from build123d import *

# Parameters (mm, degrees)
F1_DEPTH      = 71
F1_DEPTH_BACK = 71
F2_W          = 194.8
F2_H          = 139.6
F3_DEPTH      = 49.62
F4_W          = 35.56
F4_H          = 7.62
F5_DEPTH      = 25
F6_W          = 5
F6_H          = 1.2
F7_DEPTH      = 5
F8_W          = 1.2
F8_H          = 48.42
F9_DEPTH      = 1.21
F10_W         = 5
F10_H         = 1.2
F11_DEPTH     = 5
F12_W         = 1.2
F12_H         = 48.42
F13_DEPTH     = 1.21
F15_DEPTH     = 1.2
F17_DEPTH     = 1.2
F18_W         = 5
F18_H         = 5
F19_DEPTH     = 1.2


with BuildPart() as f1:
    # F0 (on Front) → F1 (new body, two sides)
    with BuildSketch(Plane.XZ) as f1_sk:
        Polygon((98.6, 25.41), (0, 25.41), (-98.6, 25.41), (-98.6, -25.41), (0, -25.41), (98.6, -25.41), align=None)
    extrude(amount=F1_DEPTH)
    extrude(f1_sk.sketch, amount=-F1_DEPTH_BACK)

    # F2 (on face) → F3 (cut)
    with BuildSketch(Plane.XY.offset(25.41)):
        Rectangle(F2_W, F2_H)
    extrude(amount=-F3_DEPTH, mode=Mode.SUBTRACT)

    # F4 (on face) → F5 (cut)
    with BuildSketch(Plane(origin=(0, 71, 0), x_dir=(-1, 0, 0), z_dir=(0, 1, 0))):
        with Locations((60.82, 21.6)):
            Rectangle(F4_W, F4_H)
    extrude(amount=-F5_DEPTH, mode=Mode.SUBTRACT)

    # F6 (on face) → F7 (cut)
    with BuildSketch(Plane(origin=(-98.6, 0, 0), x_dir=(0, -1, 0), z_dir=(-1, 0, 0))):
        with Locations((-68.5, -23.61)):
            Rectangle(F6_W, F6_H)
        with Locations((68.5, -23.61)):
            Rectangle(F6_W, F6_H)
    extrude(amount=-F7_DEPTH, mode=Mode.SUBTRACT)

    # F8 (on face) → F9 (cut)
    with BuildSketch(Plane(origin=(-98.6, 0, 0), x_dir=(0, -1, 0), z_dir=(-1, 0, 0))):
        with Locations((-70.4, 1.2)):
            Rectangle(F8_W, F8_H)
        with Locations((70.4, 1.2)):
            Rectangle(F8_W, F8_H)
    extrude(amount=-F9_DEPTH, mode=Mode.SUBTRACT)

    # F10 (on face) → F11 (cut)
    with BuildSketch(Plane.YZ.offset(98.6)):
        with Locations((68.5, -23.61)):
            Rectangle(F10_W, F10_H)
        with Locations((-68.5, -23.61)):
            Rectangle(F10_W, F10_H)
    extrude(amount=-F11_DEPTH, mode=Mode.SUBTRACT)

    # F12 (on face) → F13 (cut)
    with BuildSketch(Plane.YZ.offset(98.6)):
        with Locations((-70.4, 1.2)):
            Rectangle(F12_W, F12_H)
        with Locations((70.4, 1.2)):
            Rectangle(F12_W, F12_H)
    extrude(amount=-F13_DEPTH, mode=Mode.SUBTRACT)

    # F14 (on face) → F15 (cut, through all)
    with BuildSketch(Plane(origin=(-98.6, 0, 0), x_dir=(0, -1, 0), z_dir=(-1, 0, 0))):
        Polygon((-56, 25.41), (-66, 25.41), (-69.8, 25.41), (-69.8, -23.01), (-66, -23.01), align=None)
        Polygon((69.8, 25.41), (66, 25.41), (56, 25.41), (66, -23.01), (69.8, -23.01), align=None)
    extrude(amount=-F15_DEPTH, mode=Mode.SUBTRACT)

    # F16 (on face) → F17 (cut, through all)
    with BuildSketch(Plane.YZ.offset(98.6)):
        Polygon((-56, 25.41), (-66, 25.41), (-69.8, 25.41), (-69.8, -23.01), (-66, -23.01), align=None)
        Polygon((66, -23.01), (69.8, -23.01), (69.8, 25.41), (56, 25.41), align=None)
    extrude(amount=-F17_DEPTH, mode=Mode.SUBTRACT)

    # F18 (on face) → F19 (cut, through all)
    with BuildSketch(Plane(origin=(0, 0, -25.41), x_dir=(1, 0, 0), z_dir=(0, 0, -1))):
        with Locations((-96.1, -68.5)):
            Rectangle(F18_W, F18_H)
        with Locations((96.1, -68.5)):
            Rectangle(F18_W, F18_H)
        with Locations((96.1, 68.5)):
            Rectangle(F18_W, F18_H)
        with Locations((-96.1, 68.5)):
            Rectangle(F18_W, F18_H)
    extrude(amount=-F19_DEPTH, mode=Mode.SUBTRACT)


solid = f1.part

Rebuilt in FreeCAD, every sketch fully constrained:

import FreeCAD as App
import Part
import Sketcher
Q = App.Units.Quantity

doc = App.newDocument("Part")
body = doc.addObject("PartDesign::Body", "Body")

# Sketch on XZ plane
sketch1 = body.newObject("Sketcher::SketchObject", "Sketch")
sketch1.AttachmentSupport = (doc.getObject("XZ_Plane"), [""])
sketch1.MapMode = "FlatFace"
sketch1.addGeometry(Part.LineSegment(App.Vector(99, 25, 0), App.Vector(-99, 25, 0)), False)
sketch1.addGeometry(Part.LineSegment(App.Vector(-99, 25, 0), App.Vector(-99, -25, 0)), False)
sketch1.addGeometry(Part.LineSegment(App.Vector(-99, -25, 0), App.Vector(99, -25, 0)), False)
sketch1.addGeometry(Part.LineSegment(App.Vector(99, -25, 0), App.Vector(99, 25, 0)), False)
sketch1.addConstraint(Sketcher.Constraint("Coincident", 0, 2, 1, 1))
sketch1.addConstraint(Sketcher.Constraint("Coincident", 1, 2, 2, 1))
sketch1.addConstraint(Sketcher.Constraint("Coincident", 2, 2, 3, 1))
sketch1.addConstraint(Sketcher.Constraint("Coincident", 3, 2, 0, 1))
sketch1.addConstraint(Sketcher.Constraint("Horizontal", 0))
sketch1.addConstraint(Sketcher.Constraint("Vertical", 1))
sketch1.addConstraint(Sketcher.Constraint("Horizontal", 2))
sketch1.addConstraint(Sketcher.Constraint("Vertical", 3))
sketch1.addConstraint(Sketcher.Constraint("Symmetric", 0, 2, 2, 2, -1, 1))
sketch1.addConstraint(Sketcher.Constraint("DistanceX", 0, 2, 0, 1, Q("197.2 mm")))
sketch1.addConstraint(Sketcher.Constraint("DistanceY", 1, 2, 1, 1, Q("50.82 mm")))
pad1 = body.newObject("PartDesign::Pad", "Pad")
pad1.Profile = sketch1
pad1.Type = "TwoLengths"
pad1.Length = 71
pad1.Length2 = 71

# Sketch on XY plane
sketch2 = body.newObject("Sketcher::SketchObject", "Sketch001")
sketch2.AttachmentSupport = (doc.getObject("XY_Plane"), [""])
sketch2.MapMode = "FlatFace"
sketch2.AttachmentOffset = App.Placement(App.Vector(0, 0, 25.41), App.Rotation())
sketch2.addGeometry(Part.LineSegment(App.Vector(-97, 70, 0), App.Vector(-97, -70, 0)), False)
sketch2.addGeometry(Part.LineSegment(App.Vector(-97, -70, 0), App.Vector(97, -70, 0)), False)
sketch2.addGeometry(Part.LineSegment(App.Vector(97, -70, 0), App.Vector(97, 70, 0)), False)
sketch2.addGeometry(Part.LineSegment(App.Vector(97, 70, 0), App.Vector(-97, 70, 0)), False)
sketch2.addConstraint(Sketcher.Constraint("Coincident", 0, 2, 1, 1))
sketch2.addConstraint(Sketcher.Constraint("Coincident", 1, 2, 2, 1))
sketch2.addConstraint(Sketcher.Constraint("Coincident", 2, 2, 3, 1))
sketch2.addConstraint(Sketcher.Constraint("Coincident", 3, 2, 0, 1))
sketch2.addConstraint(Sketcher.Constraint("Vertical", 0))
sketch2.addConstraint(Sketcher.Constraint("Horizontal", 1))
sketch2.addConstraint(Sketcher.Constraint("Vertical", 2))
sketch2.addConstraint(Sketcher.Constraint("Horizontal", 3))
sketch2.addConstraint(Sketcher.Constraint("Symmetric", 0, 2, 2, 2, -1, 1))
sketch2.addConstraint(Sketcher.Constraint("DistanceX", 1, 1, 1, 2, Q("194.8 mm")))
sketch2.addConstraint(Sketcher.Constraint("DistanceY", 0, 2, 0, 1, Q("139.6 mm")))
pocket1 = body.newObject("PartDesign::Pocket", "Pocket")
pocket1.Profile = sketch2
pocket1.Length = 49.62

# Sketch on XZ plane
sketch3 = body.newObject("Sketcher::SketchObject", "Sketch002")
sketch3.AttachmentSupport = (doc.getObject("XZ_Plane"), [""])
sketch3.MapMode = "FlatFace"
sketch3.AttachmentOffset = App.Placement(App.Vector(0, 0, -71), App.Rotation())
sketch3.addGeometry(Part.LineSegment(App.Vector(-43, 25, 0), App.Vector(-43, 18, 0)), False)
sketch3.addGeometry(Part.LineSegment(App.Vector(-43, 18, 0), App.Vector(-79, 18, 0)), False)
sketch3.addGeometry(Part.LineSegment(App.Vector(-79, 18, 0), App.Vector(-79, 25, 0)), False)
sketch3.addGeometry(Part.LineSegment(App.Vector(-79, 25, 0), App.Vector(-43, 25, 0)), False)
sketch3.addConstraint(Sketcher.Constraint("Coincident", 0, 2, 1, 1))
sketch3.addConstraint(Sketcher.Constraint("Coincident", 1, 2, 2, 1))
sketch3.addConstraint(Sketcher.Constraint("Coincident", 2, 2, 3, 1))
sketch3.addConstraint(Sketcher.Constraint("Coincident", 3, 2, 0, 1))
sketch3.addConstraint(Sketcher.Constraint("Vertical", 0))
sketch3.addConstraint(Sketcher.Constraint("Horizontal", 1))
sketch3.addConstraint(Sketcher.Constraint("Vertical", 2))
sketch3.addConstraint(Sketcher.Constraint("Horizontal", 3))
sketch3.addConstraint(Sketcher.Constraint("DistanceX", 1, 2, 1, 1, Q("35.56 mm")))
sketch3.addConstraint(Sketcher.Constraint("DistanceY", 0, 2, 0, 1, Q("7.62 mm")))
sketch3.addConstraint(Sketcher.Constraint("DistanceX", 1, 2, -1, 1, Q("78.6 mm")))
sketch3.addConstraint(Sketcher.Constraint("DistanceY", -1, 1, 0, 2, Q("17.79 mm")))
pocket2 = body.newObject("PartDesign::Pocket", "Pocket001")
pocket2.Profile = sketch3
pocket2.Length = 25
pocket2.Reversed = True

# Sketch on YZ plane
sketch4 = body.newObject("Sketcher::SketchObject", "Sketch003")
sketch4.AttachmentSupport = (doc.getObject("YZ_Plane"), [""])
sketch4.MapMode = "FlatFace"
sketch4.AttachmentOffset = App.Placement(App.Vector(0, 0, -98.6), App.Rotation())
sketch4.addGeometry(Part.LineSegment(App.Vector(71, -23, 0), App.Vector(71, -24.2, 0)), False)
sketch4.addGeometry(Part.LineSegment(App.Vector(71, -24.2, 0), App.Vector(66, -24.2, 0)), False)
sketch4.addGeometry(Part.LineSegment(App.Vector(66, -24.2, 0), App.Vector(66, -23, 0)), False)
sketch4.addGeometry(Part.LineSegment(App.Vector(66, -23, 0), App.Vector(71, -23, 0)), False)
sketch4.addGeometry(Part.LineSegment(App.Vector(-66, -23, 0), App.Vector(-66, -24.2, 0)), False)
sketch4.addGeometry(Part.LineSegment(App.Vector(-66, -24.2, 0), App.Vector(-71, -24.2, 0)), False)
sketch4.addGeometry(Part.LineSegment(App.Vector(-71, -24.2, 0), App.Vector(-71, -23, 0)), False)
sketch4.addGeometry(Part.LineSegment(App.Vector(-71, -23, 0), App.Vector(-66, -23, 0)), False)
sketch4.addConstraint(Sketcher.Constraint("Coincident", 0, 2, 1, 1))
sketch4.addConstraint(Sketcher.Constraint("Coincident", 1, 2, 2, 1))
sketch4.addConstraint(Sketcher.Constraint("Coincident", 2, 2, 3, 1))
sketch4.addConstraint(Sketcher.Constraint("Coincident", 3, 2, 0, 1))
sketch4.addConstraint(Sketcher.Constraint("Coincident", 4, 2, 5, 1))
sketch4.addConstraint(Sketcher.Constraint("Coincident", 5, 2, 6, 1))
sketch4.addConstraint(Sketcher.Constraint("Coincident", 6, 2, 7, 1))
sketch4.addConstraint(Sketcher.Constraint("Coincident", 7, 2, 4, 1))
sketch4.addConstraint(Sketcher.Constraint("Vertical", 0))
sketch4.addConstraint(Sketcher.Constraint("Horizontal", 1))
sketch4.addConstraint(Sketcher.Constraint("Vertical", 2))
sketch4.addConstraint(Sketcher.Constraint("Horizontal", 3))
sketch4.addConstraint(Sketcher.Constraint("Vertical", 4))
sketch4.addConstraint(Sketcher.Constraint("Horizontal", 5))
sketch4.addConstraint(Sketcher.Constraint("Vertical", 6))
sketch4.addConstraint(Sketcher.Constraint("Horizontal", 7))
sketch4.addConstraint(Sketcher.Constraint("Symmetric", 1, 2, 4, 2, -2))
sketch4.addConstraint(Sketcher.Constraint("Symmetric", 3, 2, 6, 2, -2))
sketch4.addConstraint(Sketcher.Constraint("DistanceX", 1, 2, 1, 1, Q("5 mm")))
sketch4.addConstraint(Sketcher.Constraint("DistanceY", 0, 2, 0, 1, Q("1.2 mm")))
sketch4.addConstraint(Sketcher.Constraint("DistanceX", -1, 1, 0, 2, Q("71 mm")))
sketch4.addConstraint(Sketcher.Constraint("DistanceY", 0, 2, -1, 1, Q("24.21 mm")))
pocket3 = body.newObject("PartDesign::Pocket", "Pocket002")
pocket3.Profile = sketch4
pocket3.Length = 5
pocket3.Reversed = True

# Sketch on YZ plane
sketch5 = body.newObject("Sketcher::SketchObject", "Sketch004")
sketch5.AttachmentSupport = (doc.getObject("YZ_Plane"), [""])
sketch5.MapMode = "FlatFace"
sketch5.AttachmentOffset = App.Placement(App.Vector(0, 0, -98.6), App.Rotation())
sketch5.addGeometry(Part.LineSegment(App.Vector(71, 25.4, 0), App.Vector(71, -23, 0)), False)
sketch5.addGeometry(Part.LineSegment(App.Vector(71, -23, 0), App.Vector(69.8, -23, 0)), False)
sketch5.addGeometry(Part.LineSegment(App.Vector(69.8, -23, 0), App.Vector(69.8, 25.4, 0)), False)
sketch5.addGeometry(Part.LineSegment(App.Vector(69.8, 25.4, 0), App.Vector(71, 25.4, 0)), False)
sketch5.addGeometry(Part.LineSegment(App.Vector(-69.8, 25.4, 0), App.Vector(-69.8, -23, 0)), False)
sketch5.addGeometry(Part.LineSegment(App.Vector(-69.8, -23, 0), App.Vector(-71, -23, 0)), False)
sketch5.addGeometry(Part.LineSegment(App.Vector(-71, -23, 0), App.Vector(-71, 25.4, 0)), False)
sketch5.addGeometry(Part.LineSegment(App.Vector(-71, 25.4, 0), App.Vector(-69.8, 25.4, 0)), False)
sketch5.addConstraint(Sketcher.Constraint("Coincident", 0, 2, 1, 1))
sketch5.addConstraint(Sketcher.Constraint("Coincident", 1, 2, 2, 1))
sketch5.addConstraint(Sketcher.Constraint("Coincident", 2, 2, 3, 1))
sketch5.addConstraint(Sketcher.Constraint("Coincident", 3, 2, 0, 1))
sketch5.addConstraint(Sketcher.Constraint("Coincident", 4, 2, 5, 1))
sketch5.addConstraint(Sketcher.Constraint("Coincident", 5, 2, 6, 1))
sketch5.addConstraint(Sketcher.Constraint("Coincident", 6, 2, 7, 1))
sketch5.addConstraint(Sketcher.Constraint("Coincident", 7, 2, 4, 1))
sketch5.addConstraint(Sketcher.Constraint("Vertical", 0))
sketch5.addConstraint(Sketcher.Constraint("Horizontal", 1))
sketch5.addConstraint(Sketcher.Constraint("Vertical", 2))
sketch5.addConstraint(Sketcher.Constraint("Horizontal", 3))
sketch5.addConstraint(Sketcher.Constraint("Vertical", 4))
sketch5.addConstraint(Sketcher.Constraint("Horizontal", 5))
sketch5.addConstraint(Sketcher.Constraint("Vertical", 6))
sketch5.addConstraint(Sketcher.Constraint("Horizontal", 7))
sketch5.addConstraint(Sketcher.Constraint("Symmetric", 1, 2, 4, 2, -2))
sketch5.addConstraint(Sketcher.Constraint("Symmetric", 3, 2, 6, 2, -2))
sketch5.addConstraint(Sketcher.Constraint("DistanceX", 1, 2, 1, 1, Q("1.2 mm")))
sketch5.addConstraint(Sketcher.Constraint("DistanceX", -1, 1, 0, 2, Q("71 mm")))
sketch5.addConstraint(Sketcher.Constraint("DistanceY", 0, 2, 0, 1, Q("48.42 mm")))
sketch5.addConstraint(Sketcher.Constraint("DistanceY", 0, 2, -1, 1, Q("23.01 mm")))
pocket4 = body.newObject("PartDesign::Pocket", "Pocket003")
pocket4.Profile = sketch5
pocket4.Length = 1.21
pocket4.Reversed = True

# Sketch on YZ plane
sketch6 = body.newObject("Sketcher::SketchObject", "Sketch005")
sketch6.AttachmentSupport = (doc.getObject("YZ_Plane"), [""])
sketch6.MapMode = "FlatFace"
sketch6.AttachmentOffset = App.Placement(App.Vector(0, 0, 98.6), App.Rotation())
sketch6.addGeometry(Part.LineSegment(App.Vector(66, -23, 0), App.Vector(66, -24.2, 0)), False)
sketch6.addGeometry(Part.LineSegment(App.Vector(66, -24.2, 0), App.Vector(71, -24.2, 0)), False)
sketch6.addGeometry(Part.LineSegment(App.Vector(71, -24.2, 0), App.Vector(71, -23, 0)), False)
sketch6.addGeometry(Part.LineSegment(App.Vector(71, -23, 0), App.Vector(66, -23, 0)), False)
sketch6.addGeometry(Part.LineSegment(App.Vector(-71, -23, 0), App.Vector(-71, -24.2, 0)), False)
sketch6.addGeometry(Part.LineSegment(App.Vector(-71, -24.2, 0), App.Vector(-66, -24.2, 0)), False)
sketch6.addGeometry(Part.LineSegment(App.Vector(-66, -24.2, 0), App.Vector(-66, -23, 0)), False)
sketch6.addGeometry(Part.LineSegment(App.Vector(-66, -23, 0), App.Vector(-71, -23, 0)), False)
sketch6.addConstraint(Sketcher.Constraint("Coincident", 0, 2, 1, 1))
sketch6.addConstraint(Sketcher.Constraint("Coincident", 1, 2, 2, 1))
sketch6.addConstraint(Sketcher.Constraint("Coincident", 2, 2, 3, 1))
sketch6.addConstraint(Sketcher.Constraint("Coincident", 3, 2, 0, 1))
sketch6.addConstraint(Sketcher.Constraint("Coincident", 4, 2, 5, 1))
sketch6.addConstraint(Sketcher.Constraint("Coincident", 5, 2, 6, 1))
sketch6.addConstraint(Sketcher.Constraint("Coincident", 6, 2, 7, 1))
sketch6.addConstraint(Sketcher.Constraint("Coincident", 7, 2, 4, 1))
sketch6.addConstraint(Sketcher.Constraint("Vertical", 0))
sketch6.addConstraint(Sketcher.Constraint("Horizontal", 1))
sketch6.addConstraint(Sketcher.Constraint("Vertical", 2))
sketch6.addConstraint(Sketcher.Constraint("Horizontal", 3))
sketch6.addConstraint(Sketcher.Constraint("Vertical", 4))
sketch6.addConstraint(Sketcher.Constraint("Horizontal", 5))
sketch6.addConstraint(Sketcher.Constraint("Vertical", 6))
sketch6.addConstraint(Sketcher.Constraint("Horizontal", 7))
sketch6.addConstraint(Sketcher.Constraint("Symmetric", 1, 2, 4, 2, -2))
sketch6.addConstraint(Sketcher.Constraint("Symmetric", 3, 2, 6, 2, -2))
sketch6.addConstraint(Sketcher.Constraint("DistanceX", 1, 1, 1, 2, Q("5 mm")))
sketch6.addConstraint(Sketcher.Constraint("DistanceY", 0, 2, 0, 1, Q("1.2 mm")))
sketch6.addConstraint(Sketcher.Constraint("DistanceX", -1, 1, 0, 2, Q("66 mm")))
sketch6.addConstraint(Sketcher.Constraint("DistanceY", 0, 2, -1, 1, Q("24.21 mm")))
pocket5 = body.newObject("PartDesign::Pocket", "Pocket004")
pocket5.Profile = sketch6
pocket5.Length = 5

# Sketch on YZ plane
sketch7 = body.newObject("Sketcher::SketchObject", "Sketch006")
sketch7.AttachmentSupport = (doc.getObject("YZ_Plane"), [""])
sketch7.MapMode = "FlatFace"
sketch7.AttachmentOffset = App.Placement(App.Vector(0, 0, 98.6), App.Rotation())
sketch7.addGeometry(Part.LineSegment(App.Vector(-71, 25.4, 0), App.Vector(-71, -23, 0)), False)
sketch7.addGeometry(Part.LineSegment(App.Vector(-71, -23, 0), App.Vector(-69.8, -23, 0)), False)
sketch7.addGeometry(Part.LineSegment(App.Vector(-69.8, -23, 0), App.Vector(-69.8, 25.4, 0)), False)
sketch7.addGeometry(Part.LineSegment(App.Vector(-69.8, 25.4, 0), App.Vector(-71, 25.4, 0)), False)
sketch7.addGeometry(Part.LineSegment(App.Vector(69.8, 25.4, 0), App.Vector(69.8, -23, 0)), False)
sketch7.addGeometry(Part.LineSegment(App.Vector(69.8, -23, 0), App.Vector(71, -23, 0)), False)
sketch7.addGeometry(Part.LineSegment(App.Vector(71, -23, 0), App.Vector(71, 25.4, 0)), False)
sketch7.addGeometry(Part.LineSegment(App.Vector(71, 25.4, 0), App.Vector(69.8, 25.4, 0)), False)
sketch7.addConstraint(Sketcher.Constraint("Coincident", 0, 2, 1, 1))
sketch7.addConstraint(Sketcher.Constraint("Coincident", 1, 2, 2, 1))
sketch7.addConstraint(Sketcher.Constraint("Coincident", 2, 2, 3, 1))
sketch7.addConstraint(Sketcher.Constraint("Coincident", 3, 2, 0, 1))
sketch7.addConstraint(Sketcher.Constraint("Coincident", 4, 2, 5, 1))
sketch7.addConstraint(Sketcher.Constraint("Coincident", 5, 2, 6, 1))
sketch7.addConstraint(Sketcher.Constraint("Coincident", 6, 2, 7, 1))
sketch7.addConstraint(Sketcher.Constraint("Coincident", 7, 2, 4, 1))
sketch7.addConstraint(Sketcher.Constraint("Vertical", 0))
sketch7.addConstraint(Sketcher.Constraint("Horizontal", 1))
sketch7.addConstraint(Sketcher.Constraint("Vertical", 2))
sketch7.addConstraint(Sketcher.Constraint("Horizontal", 3))
sketch7.addConstraint(Sketcher.Constraint("Vertical", 4))
sketch7.addConstraint(Sketcher.Constraint("Horizontal", 5))
sketch7.addConstraint(Sketcher.Constraint("Vertical", 6))
sketch7.addConstraint(Sketcher.Constraint("Horizontal", 7))
sketch7.addConstraint(Sketcher.Constraint("Symmetric", 1, 2, 4, 2, -2))
sketch7.addConstraint(Sketcher.Constraint("Symmetric", 3, 2, 6, 2, -2))
sketch7.addConstraint(Sketcher.Constraint("DistanceX", 1, 1, 1, 2, Q("1.2 mm")))
sketch7.addConstraint(Sketcher.Constraint("DistanceX", 0, 2, -1, 1, Q("71 mm")))
sketch7.addConstraint(Sketcher.Constraint("DistanceY", 0, 2, 0, 1, Q("48.42 mm")))
sketch7.addConstraint(Sketcher.Constraint("DistanceY", 0, 2, -1, 1, Q("23.01 mm")))
pocket6 = body.newObject("PartDesign::Pocket", "Pocket005")
pocket6.Profile = sketch7
pocket6.Length = 1.21

# Sketch on YZ plane
sketch8 = body.newObject("Sketcher::SketchObject", "Sketch007")
sketch8.AttachmentSupport = (doc.getObject("YZ_Plane"), [""])
sketch8.MapMode = "FlatFace"
sketch8.AttachmentOffset = App.Placement(App.Vector(0, 0, -98.6), App.Rotation())
sketch8.addGeometry(Part.LineSegment(App.Vector(56, 25.4, 0), App.Vector(69.8, 25.4, 0)), False)
sketch8.addGeometry(Part.LineSegment(App.Vector(69.8, 25.4, 0), App.Vector(69.8, -23, 0)), False)
sketch8.addGeometry(Part.LineSegment(App.Vector(69.8, -23, 0), App.Vector(66, -23, 0)), False)
sketch8.addGeometry(Part.LineSegment(App.Vector(66, -23, 0), App.Vector(56, 25.4, 0)), False)
sketch8.addGeometry(Part.LineSegment(App.Vector(-69.8, 25.4, 0), App.Vector(-56, 25.4, 0)), False)
sketch8.addGeometry(Part.LineSegment(App.Vector(-56, 25.4, 0), App.Vector(-66, -23, 0)), False)
sketch8.addGeometry(Part.LineSegment(App.Vector(-66, -23, 0), App.Vector(-69.8, -23, 0)), False)
sketch8.addGeometry(Part.LineSegment(App.Vector(-69.8, -23, 0), App.Vector(-69.8, 25.4, 0)), False)
sketch8.addConstraint(Sketcher.Constraint("Coincident", 0, 2, 1, 1))
sketch8.addConstraint(Sketcher.Constraint("Coincident", 1, 2, 2, 1))
sketch8.addConstraint(Sketcher.Constraint("Coincident", 2, 2, 3, 1))
sketch8.addConstraint(Sketcher.Constraint("Coincident", 3, 2, 0, 1))
sketch8.addConstraint(Sketcher.Constraint("Coincident", 4, 2, 5, 1))
sketch8.addConstraint(Sketcher.Constraint("Coincident", 5, 2, 6, 1))
sketch8.addConstraint(Sketcher.Constraint("Coincident", 6, 2, 7, 1))
sketch8.addConstraint(Sketcher.Constraint("Coincident", 7, 2, 4, 1))
sketch8.addConstraint(Sketcher.Constraint("Horizontal", 0))
sketch8.addConstraint(Sketcher.Constraint("Vertical", 1))
sketch8.addConstraint(Sketcher.Constraint("Horizontal", 2))
sketch8.addConstraint(Sketcher.Constraint("Horizontal", 4))
sketch8.addConstraint(Sketcher.Constraint("Horizontal", 6))
sketch8.addConstraint(Sketcher.Constraint("Vertical", 7))
sketch8.addConstraint(Sketcher.Constraint("Symmetric", 3, 2, 4, 2, -2))
sketch8.addConstraint(Sketcher.Constraint("Symmetric", 2, 2, 5, 2, -2))
sketch8.addConstraint(Sketcher.Constraint("Equal", 0, 4))
sketch8.addConstraint(Sketcher.Constraint("DistanceX", 0, 1, 0, 2, Q("13.8 mm")))
sketch8.addConstraint(Sketcher.Constraint("DistanceX", 2, 2, 2, 1, Q("3.8 mm")))
sketch8.addConstraint(Sketcher.Constraint("DistanceX", -1, 1, 2, 2, Q("66 mm")))
sketch8.addConstraint(Sketcher.Constraint("DistanceY", 1, 2, 1, 1, Q("48.42 mm")))
sketch8.addConstraint(Sketcher.Constraint("DistanceY", -1, 1, 0, 2, Q("25.41 mm")))
pocket7 = body.newObject("PartDesign::Pocket", "Pocket006")
pocket7.Profile = sketch8
pocket7.Length = 1.2
pocket7.Reversed = True

# Sketch on YZ plane
sketch9 = body.newObject("Sketcher::SketchObject", "Sketch008")
sketch9.AttachmentSupport = (doc.getObject("YZ_Plane"), [""])
sketch9.MapMode = "FlatFace"
sketch9.AttachmentOffset = App.Placement(App.Vector(0, 0, 98.6), App.Rotation())
sketch9.addGeometry(Part.LineSegment(App.Vector(-56, 25.4, 0), App.Vector(-69.8, 25.4, 0)), False)
sketch9.addGeometry(Part.LineSegment(App.Vector(-69.8, 25.4, 0), App.Vector(-69.8, -23, 0)), False)
sketch9.addGeometry(Part.LineSegment(App.Vector(-69.8, -23, 0), App.Vector(-66, -23, 0)), False)
sketch9.addGeometry(Part.LineSegment(App.Vector(-66, -23, 0), App.Vector(-56, 25.4, 0)), False)
sketch9.addGeometry(Part.LineSegment(App.Vector(66, -23, 0), App.Vector(69.8, -23, 0)), False)
sketch9.addGeometry(Part.LineSegment(App.Vector(69.8, -23, 0), App.Vector(69.8, 25.4, 0)), False)
sketch9.addGeometry(Part.LineSegment(App.Vector(69.8, 25.4, 0), App.Vector(56, 25.4, 0)), False)
sketch9.addGeometry(Part.LineSegment(App.Vector(56, 25.4, 0), App.Vector(66, -23, 0)), False)
sketch9.addConstraint(Sketcher.Constraint("Coincident", 0, 2, 1, 1))
sketch9.addConstraint(Sketcher.Constraint("Coincident", 1, 2, 2, 1))
sketch9.addConstraint(Sketcher.Constraint("Coincident", 2, 2, 3, 1))
sketch9.addConstraint(Sketcher.Constraint("Coincident", 3, 2, 0, 1))
sketch9.addConstraint(Sketcher.Constraint("Coincident", 4, 2, 5, 1))
sketch9.addConstraint(Sketcher.Constraint("Coincident", 5, 2, 6, 1))
sketch9.addConstraint(Sketcher.Constraint("Coincident", 6, 2, 7, 1))
sketch9.addConstraint(Sketcher.Constraint("Coincident", 7, 2, 4, 1))
sketch9.addConstraint(Sketcher.Constraint("Horizontal", 0))
sketch9.addConstraint(Sketcher.Constraint("Vertical", 1))
sketch9.addConstraint(Sketcher.Constraint("Horizontal", 2))
sketch9.addConstraint(Sketcher.Constraint("Horizontal", 4))
sketch9.addConstraint(Sketcher.Constraint("Vertical", 5))
sketch9.addConstraint(Sketcher.Constraint("Horizontal", 6))
sketch9.addConstraint(Sketcher.Constraint("Symmetric", 1, 2, 4, 2, -2))
sketch9.addConstraint(Sketcher.Constraint("Symmetric", 3, 2, 6, 2, -2))
sketch9.addConstraint(Sketcher.Constraint("Equal", 2, 4))
sketch9.addConstraint(Sketcher.Constraint("DistanceX", 0, 2, 0, 1, Q("13.8 mm")))
sketch9.addConstraint(Sketcher.Constraint("DistanceX", 2, 1, 2, 2, Q("3.8 mm")))
sketch9.addConstraint(Sketcher.Constraint("DistanceX", 2, 2, -1, 1, Q("66 mm")))
sketch9.addConstraint(Sketcher.Constraint("DistanceY", 1, 2, 1, 1, Q("48.42 mm")))
sketch9.addConstraint(Sketcher.Constraint("DistanceY", -1, 1, 0, 2, Q("25.41 mm")))
pocket8 = body.newObject("PartDesign::Pocket", "Pocket007")
pocket8.Profile = sketch9
pocket8.Type = "ThroughAll"

# Sketch on XY plane
sketch10 = body.newObject("Sketcher::SketchObject", "Sketch009")
sketch10.AttachmentSupport = (doc.getObject("XY_Plane"), [""])
sketch10.MapMode = "FlatFace"
sketch10.AttachmentOffset = App.Placement(App.Vector(0, 0, -25.41), App.Rotation())
sketch10.addGeometry(Part.LineSegment(App.Vector(-99, 66, 0), App.Vector(-99, 71, 0)), False)
sketch10.addGeometry(Part.LineSegment(App.Vector(-99, 71, 0), App.Vector(-94, 71, 0)), False)
sketch10.addGeometry(Part.LineSegment(App.Vector(-94, 71, 0), App.Vector(-94, 66, 0)), False)
sketch10.addGeometry(Part.LineSegment(App.Vector(-94, 66, 0), App.Vector(-99, 66, 0)), False)
sketch10.addGeometry(Part.LineSegment(App.Vector(94, 66, 0), App.Vector(94, 71, 0)), False)
sketch10.addGeometry(Part.LineSegment(App.Vector(94, 71, 0), App.Vector(99, 71, 0)), False)
sketch10.addGeometry(Part.LineSegment(App.Vector(99, 71, 0), App.Vector(99, 66, 0)), False)
sketch10.addGeometry(Part.LineSegment(App.Vector(99, 66, 0), App.Vector(94, 66, 0)), False)
sketch10.addGeometry(Part.LineSegment(App.Vector(94, -71, 0), App.Vector(94, -66, 0)), False)
sketch10.addGeometry(Part.LineSegment(App.Vector(94, -66, 0), App.Vector(99, -66, 0)), False)
sketch10.addGeometry(Part.LineSegment(App.Vector(99, -66, 0), App.Vector(99, -71, 0)), False)
sketch10.addGeometry(Part.LineSegment(App.Vector(99, -71, 0), App.Vector(94, -71, 0)), False)
sketch10.addGeometry(Part.LineSegment(App.Vector(-99, -71, 0), App.Vector(-99, -66, 0)), False)
sketch10.addGeometry(Part.LineSegment(App.Vector(-99, -66, 0), App.Vector(-94, -66, 0)), False)
sketch10.addGeometry(Part.LineSegment(App.Vector(-94, -66, 0), App.Vector(-94, -71, 0)), False)
sketch10.addGeometry(Part.LineSegment(App.Vector(-94, -71, 0), App.Vector(-99, -71, 0)), False)
sketch10.addConstraint(Sketcher.Constraint("Coincident", 0, 2, 1, 1))
sketch10.addConstraint(Sketcher.Constraint("Coincident", 1, 2, 2, 1))
sketch10.addConstraint(Sketcher.Constraint("Coincident", 2, 2, 3, 1))
sketch10.addConstraint(Sketcher.Constraint("Coincident", 3, 2, 0, 1))
sketch10.addConstraint(Sketcher.Constraint("Coincident", 4, 2, 5, 1))
sketch10.addConstraint(Sketcher.Constraint("Coincident", 5, 2, 6, 1))
sketch10.addConstraint(Sketcher.Constraint("Coincident", 6, 2, 7, 1))
sketch10.addConstraint(Sketcher.Constraint("Coincident", 7, 2, 4, 1))
sketch10.addConstraint(Sketcher.Constraint("Coincident", 8, 2, 9, 1))
sketch10.addConstraint(Sketcher.Constraint("Coincident", 9, 2, 10, 1))
sketch10.addConstraint(Sketcher.Constraint("Coincident", 10, 2, 11, 1))
sketch10.addConstraint(Sketcher.Constraint("Coincident", 11, 2, 8, 1))
sketch10.addConstraint(Sketcher.Constraint("Coincident", 12, 2, 13, 1))
sketch10.addConstraint(Sketcher.Constraint("Coincident", 13, 2, 14, 1))
sketch10.addConstraint(Sketcher.Constraint("Coincident", 14, 2, 15, 1))
sketch10.addConstraint(Sketcher.Constraint("Coincident", 15, 2, 12, 1))
sketch10.addConstraint(Sketcher.Constraint("Vertical", 0))
sketch10.addConstraint(Sketcher.Constraint("Horizontal", 1))
sketch10.addConstraint(Sketcher.Constraint("Vertical", 2))
sketch10.addConstraint(Sketcher.Constraint("Horizontal", 3))
sketch10.addConstraint(Sketcher.Constraint("Vertical", 4))
sketch10.addConstraint(Sketcher.Constraint("Horizontal", 5))
sketch10.addConstraint(Sketcher.Constraint("Vertical", 6))
sketch10.addConstraint(Sketcher.Constraint("Horizontal", 7))
sketch10.addConstraint(Sketcher.Constraint("Vertical", 8))
sketch10.addConstraint(Sketcher.Constraint("Horizontal", 9))
sketch10.addConstraint(Sketcher.Constraint("Vertical", 10))
sketch10.addConstraint(Sketcher.Constraint("Horizontal", 11))
sketch10.addConstraint(Sketcher.Constraint("Vertical", 12))
sketch10.addConstraint(Sketcher.Constraint("Horizontal", 13))
sketch10.addConstraint(Sketcher.Constraint("Vertical", 14))
sketch10.addConstraint(Sketcher.Constraint("Horizontal", 15))
sketch10.addConstraint(Sketcher.Constraint("Symmetric", 2, 2, 8, 2, -1, 1))
sketch10.addConstraint(Sketcher.Constraint("Symmetric", 0, 2, 10, 2, -1, 1))
sketch10.addConstraint(Sketcher.Constraint("Symmetric", 6, 2, 12, 2, -1, 1))
sketch10.addConstraint(Sketcher.Constraint("Symmetric", 4, 2, 14, 2, -1, 1))
sketch10.addConstraint(Sketcher.Constraint("Symmetric", 1, 2, 4, 2, -2))
sketch10.addConstraint(Sketcher.Constraint("Symmetric", 3, 2, 6, 2, -2))
sketch10.addConstraint(Sketcher.Constraint("Equal", 15, 0))
sketch10.addConstraint(Sketcher.Constraint("DistanceX", 1, 1, 1, 2, Q("5 mm")))
sketch10.addConstraint(Sketcher.Constraint("DistanceY", -1, 1, 0, 2, Q("71 mm")))
sketch10.addConstraint(Sketcher.Constraint("DistanceX", 0, 2, -1, 1, Q("98.6 mm")))
pocket9 = body.newObject("PartDesign::Pocket", "Pocket008")
pocket9.Profile = sketch10
pocket9.Length = 1.2
pocket9.Reversed = True

doc.recompute()
